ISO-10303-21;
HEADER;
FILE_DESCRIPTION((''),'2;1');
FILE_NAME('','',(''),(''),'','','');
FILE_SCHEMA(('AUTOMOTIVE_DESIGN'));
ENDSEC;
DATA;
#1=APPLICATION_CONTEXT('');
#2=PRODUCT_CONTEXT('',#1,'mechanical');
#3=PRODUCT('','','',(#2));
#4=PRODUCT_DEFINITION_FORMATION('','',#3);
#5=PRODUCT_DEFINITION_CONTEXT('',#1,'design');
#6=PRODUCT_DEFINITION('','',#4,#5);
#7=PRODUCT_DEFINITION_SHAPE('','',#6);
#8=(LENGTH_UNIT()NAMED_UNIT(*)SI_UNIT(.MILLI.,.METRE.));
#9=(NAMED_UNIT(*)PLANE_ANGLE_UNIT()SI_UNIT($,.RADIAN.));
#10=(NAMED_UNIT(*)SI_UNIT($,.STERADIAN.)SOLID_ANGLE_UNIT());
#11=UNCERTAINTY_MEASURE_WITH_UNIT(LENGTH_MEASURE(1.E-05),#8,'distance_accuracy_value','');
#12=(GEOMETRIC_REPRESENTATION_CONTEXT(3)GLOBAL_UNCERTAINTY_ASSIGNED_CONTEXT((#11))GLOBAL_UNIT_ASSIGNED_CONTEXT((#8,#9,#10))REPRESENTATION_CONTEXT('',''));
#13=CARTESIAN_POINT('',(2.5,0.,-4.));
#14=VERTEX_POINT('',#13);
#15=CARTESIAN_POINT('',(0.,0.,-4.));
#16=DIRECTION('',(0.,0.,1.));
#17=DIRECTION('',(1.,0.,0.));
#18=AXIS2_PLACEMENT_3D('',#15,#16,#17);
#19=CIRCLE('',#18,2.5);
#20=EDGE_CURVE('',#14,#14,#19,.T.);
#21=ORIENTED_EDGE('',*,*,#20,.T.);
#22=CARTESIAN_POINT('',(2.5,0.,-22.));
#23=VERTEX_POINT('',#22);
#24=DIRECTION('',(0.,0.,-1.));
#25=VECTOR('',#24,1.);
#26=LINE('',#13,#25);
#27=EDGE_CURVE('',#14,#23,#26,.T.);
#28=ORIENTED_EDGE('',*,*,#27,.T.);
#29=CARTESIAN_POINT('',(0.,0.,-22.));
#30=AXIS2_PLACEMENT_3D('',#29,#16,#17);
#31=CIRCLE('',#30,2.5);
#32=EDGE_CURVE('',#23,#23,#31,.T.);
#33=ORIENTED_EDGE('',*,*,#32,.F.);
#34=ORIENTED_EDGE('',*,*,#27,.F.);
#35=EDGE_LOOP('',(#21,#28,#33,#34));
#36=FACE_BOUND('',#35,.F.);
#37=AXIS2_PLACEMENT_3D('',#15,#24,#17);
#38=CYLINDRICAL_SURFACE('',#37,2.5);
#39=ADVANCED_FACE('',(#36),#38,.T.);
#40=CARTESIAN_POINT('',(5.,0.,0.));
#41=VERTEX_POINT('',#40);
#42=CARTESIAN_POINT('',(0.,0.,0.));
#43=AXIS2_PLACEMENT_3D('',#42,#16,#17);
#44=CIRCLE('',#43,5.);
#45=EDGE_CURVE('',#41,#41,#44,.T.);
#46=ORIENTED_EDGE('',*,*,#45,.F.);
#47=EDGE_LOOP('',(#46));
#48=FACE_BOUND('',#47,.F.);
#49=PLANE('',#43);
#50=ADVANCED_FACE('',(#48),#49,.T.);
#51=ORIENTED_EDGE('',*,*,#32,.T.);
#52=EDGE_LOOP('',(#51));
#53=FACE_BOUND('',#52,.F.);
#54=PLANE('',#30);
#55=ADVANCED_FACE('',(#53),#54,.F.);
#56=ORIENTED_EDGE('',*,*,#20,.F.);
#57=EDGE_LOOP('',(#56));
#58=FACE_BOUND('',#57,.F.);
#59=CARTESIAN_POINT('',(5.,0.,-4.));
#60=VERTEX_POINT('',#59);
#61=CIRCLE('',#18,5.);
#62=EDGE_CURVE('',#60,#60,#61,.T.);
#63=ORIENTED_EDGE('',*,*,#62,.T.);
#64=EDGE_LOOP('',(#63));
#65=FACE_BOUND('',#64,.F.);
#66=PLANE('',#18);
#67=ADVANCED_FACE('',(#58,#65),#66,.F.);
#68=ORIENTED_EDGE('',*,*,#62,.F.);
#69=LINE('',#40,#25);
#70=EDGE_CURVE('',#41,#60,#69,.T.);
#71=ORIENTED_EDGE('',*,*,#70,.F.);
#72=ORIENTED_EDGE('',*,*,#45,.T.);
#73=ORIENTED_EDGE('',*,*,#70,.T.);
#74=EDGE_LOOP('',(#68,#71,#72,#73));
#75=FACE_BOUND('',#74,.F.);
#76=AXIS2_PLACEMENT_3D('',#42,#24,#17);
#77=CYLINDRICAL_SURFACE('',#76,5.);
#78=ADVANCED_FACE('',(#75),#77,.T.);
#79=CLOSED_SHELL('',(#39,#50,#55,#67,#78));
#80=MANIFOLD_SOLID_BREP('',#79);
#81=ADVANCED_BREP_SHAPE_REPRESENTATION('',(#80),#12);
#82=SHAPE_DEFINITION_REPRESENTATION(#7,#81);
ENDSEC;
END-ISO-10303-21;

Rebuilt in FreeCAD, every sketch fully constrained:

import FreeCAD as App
import Part
import Sketcher

doc = App.newDocument("Part")
params = doc.addObject("Spreadsheet::Sheet", "Params")
for row, (alias, value) in enumerate([
    ("sketch1_width", "5 mm"),
    ("sketch1_height", "22 mm"),
    ("sketch1_height2", "18 mm"),
    ("revolution_angle", "360 deg"),
], start=1):
    params.set(f"A{row}", alias)
    params.set(f"B{row}", "=" + value)
    params.setAlias(f"B{row}", alias)

body = doc.addObject("PartDesign::Body", "Body")

sketch1 = body.newObject("Sketcher::SketchObject", "Sketch")
sketch1.AttachmentSupport = (doc.getObject("XZ_Plane"), [""])
sketch1.MapMode = "FlatFace"
sketch1.addGeometry([
    Part.LineSegment(App.Vector(5, 0, 0), App.Vector(0, 0, 0)),
    Part.LineSegment(App.Vector(0, 0, 0), App.Vector(0, -22, 0)),
    Part.LineSegment(App.Vector(0, -22, 0), App.Vector(2.5, -22, 0)),
    Part.LineSegment(App.Vector(2.5, -22, 0), App.Vector(2.5, -4, 0)),
    Part.LineSegment(App.Vector(2.5, -4, 0), App.Vector(5, -4, 0)),
    Part.LineSegment(App.Vector(5, -4, 0), App.Vector(5, 0, 0)),
], False)
sketch1.addConstraint([
    Sketcher.Constraint("Coincident", 0, 2, 1, 1),
    Sketcher.Constraint("Coincident", 1, 2, 2, 1),
    Sketcher.Constraint("Coincident", 2, 2, 3, 1),
    Sketcher.Constraint("Coincident", 3, 2, 4, 1),
    Sketcher.Constraint("Coincident", 4, 2, 5, 1),
    Sketcher.Constraint("Coincident", 5, 2, 0, 1),
    Sketcher.Constraint("Horizontal", 0),
    Sketcher.Constraint("Vertical", 1),
    Sketcher.Constraint("Horizontal", 2),
    Sketcher.Constraint("Vertical", 3),
    Sketcher.Constraint("Horizontal", 4),
    Sketcher.Constraint("Vertical", 5),
    Sketcher.Constraint("Coincident", 0, 2, -1, 1),
    Sketcher.Constraint("Equal", 2, 4),
    Sketcher.Constraint("DistanceX", 0, 2, 0, 1, 5.0),
    Sketcher.Constraint("DistanceY", 1, 2, 1, 1, 22.0),
    Sketcher.Constraint("DistanceY", 3, 1, 3, 2, 18.0),
])
sketch1.setExpression("Constraints[14]", "Params.sketch1_width")
sketch1.setExpression("Constraints[15]", "Params.sketch1_height")
sketch1.setExpression("Constraints[16]", "Params.sketch1_height2")
revolution = body.newObject("PartDesign::Revolution", "Revolution")
revolution.Profile = sketch1
revolution.ReferenceAxis = (sketch1, ["V_Axis"])
revolution.setExpression("Angle", "Params.revolution_angle")

doc.recompute()
